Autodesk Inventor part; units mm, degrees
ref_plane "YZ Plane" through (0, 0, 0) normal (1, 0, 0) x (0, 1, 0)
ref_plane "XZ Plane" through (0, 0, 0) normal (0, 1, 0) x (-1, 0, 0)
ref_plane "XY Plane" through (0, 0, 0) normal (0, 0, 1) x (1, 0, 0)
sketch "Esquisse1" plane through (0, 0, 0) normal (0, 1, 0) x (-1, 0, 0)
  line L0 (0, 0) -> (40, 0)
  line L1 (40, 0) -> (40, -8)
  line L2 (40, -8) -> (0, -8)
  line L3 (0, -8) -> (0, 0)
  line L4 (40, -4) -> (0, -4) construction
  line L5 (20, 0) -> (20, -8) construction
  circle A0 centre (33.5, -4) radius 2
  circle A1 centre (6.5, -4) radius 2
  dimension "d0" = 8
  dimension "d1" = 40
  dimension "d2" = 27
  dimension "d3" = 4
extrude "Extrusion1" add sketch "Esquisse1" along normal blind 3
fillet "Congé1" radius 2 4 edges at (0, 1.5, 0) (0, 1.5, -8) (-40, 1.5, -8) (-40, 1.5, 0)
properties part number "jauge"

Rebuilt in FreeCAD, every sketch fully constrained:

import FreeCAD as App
import Part
import Sketcher
from FreeCAD import Vector
Q = App.Units.Quantity


def edges_at(feature, points):
    """Names of the edges that pass closest to the given points."""
    edges = feature.Shape.Edges
    near = lambda p: min(range(len(edges)), key=lambda i: edges[i].distToShape(Part.Vertex(*p))[0])
    return sorted({f"Edge{near(p) + 1}" for p in points})

doc = App.newDocument("Part")
body = doc.addObject("PartDesign::Body", "Body")

# Sketch on XZ plane
sketch1 = doc.addObject("Sketcher::SketchObject", "Sketch")
body.addObject(sketch1)
sketch1.AttachmentSupport = (doc.XZ_Plane, [""])
sketch1.MapMode = "FlatFace"
sketch1.addGeometry(Part.LineSegment(Vector(-40, 0, 0), Vector(0, 0, 0)), False)
sketch1.addGeometry(Part.LineSegment(Vector(0, 0, 0), Vector(0, -8, 0)), False)
sketch1.addGeometry(Part.LineSegment(Vector(0, -8, 0), Vector(-40, -8, 0)), False)
sketch1.addGeometry(Part.LineSegment(Vector(-40, -8, 0), Vector(-40, 0, 0)), False)
sketch1.addGeometry(Part.Circle(Vector(-6.5, -4, 0), Vector(0, 0, 1), 2), False)
sketch1.addGeometry(Part.Circle(Vector(-33.5, -4, 0), Vector(0, 0, 1), 2), False)
sketch1.addConstraint(Sketcher.Constraint("Coincident", 0, 2, 1, 1))
sketch1.addConstraint(Sketcher.Constraint("Coincident", 1, 2, 2, 1))
sketch1.addConstraint(Sketcher.Constraint("Coincident", 2, 2, 3, 1))
sketch1.addConstraint(Sketcher.Constraint("Coincident", 3, 2, 0, 1))
sketch1.addConstraint(Sketcher.Constraint("Horizontal", 0))
sketch1.addConstraint(Sketcher.Constraint("Vertical", 1))
sketch1.addConstraint(Sketcher.Constraint("Horizontal", 2))
sketch1.addConstraint(Sketcher.Constraint("Vertical", 3))
sketch1.addConstraint(Sketcher.Constraint("Coincident", 0, 2, -1, 1))
sketch1.addConstraint(Sketcher.Constraint("Equal", 4, 5))
sketch1.addConstraint(Sketcher.Constraint("Horizontal", 4, 3, 5, 3))
sketch1.addConstraint(Sketcher.Constraint("Diameter", 4, Q("4 mm")))
sketch1.addConstraint(Sketcher.Constraint("DistanceX", 0, 1, 0, 2, Q("40 mm")))
sketch1.addConstraint(Sketcher.Constraint("DistanceY", 1, 2, 1, 1, Q("8 mm")))
sketch1.addConstraint(Sketcher.Constraint("DistanceY", 4, 3, -1, 1, Q("4 mm")))
sketch1.addConstraint(Sketcher.Constraint("DistanceX", 5, 3, 4, 3, Q("27 mm")))
sketch1.addConstraint(Sketcher.Constraint("DistanceX", 4, 3, -1, 1, Q("6.5 mm")))
pad1 = doc.addObject("PartDesign::Pad", "Pad")
body.addObject(pad1)
pad1.Profile = sketch1
pad1.Length = 3
pad1.Reversed = True
doc.recompute()

fillet = doc.addObject("PartDesign::Fillet", "Fillet")
body.addObject(fillet)
fillet.Base = (pad1, edges_at(pad1, [
    (0, 1.5, 0),
    (0, 1.5, -8),
    (-40, 1.5, -8),
    (-40, 1.5, 0),
]))
fillet.Radius = 2

doc.recompute()
